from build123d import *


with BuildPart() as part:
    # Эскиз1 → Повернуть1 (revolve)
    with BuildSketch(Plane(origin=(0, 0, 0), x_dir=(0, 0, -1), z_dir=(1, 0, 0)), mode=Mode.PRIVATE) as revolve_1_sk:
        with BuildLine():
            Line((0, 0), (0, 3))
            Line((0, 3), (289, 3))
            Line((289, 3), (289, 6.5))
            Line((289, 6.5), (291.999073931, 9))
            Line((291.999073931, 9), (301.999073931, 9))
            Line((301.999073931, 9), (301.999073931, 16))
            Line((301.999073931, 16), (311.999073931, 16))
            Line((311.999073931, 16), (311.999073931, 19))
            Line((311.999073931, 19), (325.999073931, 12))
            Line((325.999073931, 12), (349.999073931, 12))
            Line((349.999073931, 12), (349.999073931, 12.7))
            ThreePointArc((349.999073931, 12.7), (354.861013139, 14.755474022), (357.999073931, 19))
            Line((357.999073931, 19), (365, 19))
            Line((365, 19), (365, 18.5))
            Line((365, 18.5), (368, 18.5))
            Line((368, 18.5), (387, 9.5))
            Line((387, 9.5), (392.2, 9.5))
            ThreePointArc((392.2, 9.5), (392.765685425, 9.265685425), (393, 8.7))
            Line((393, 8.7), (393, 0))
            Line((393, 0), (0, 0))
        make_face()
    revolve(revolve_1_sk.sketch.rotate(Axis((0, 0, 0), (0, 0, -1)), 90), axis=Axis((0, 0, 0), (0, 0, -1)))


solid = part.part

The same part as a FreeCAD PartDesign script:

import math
import FreeCAD as App
import Part
import Sketcher

doc = App.newDocument("Part")
body = doc.addObject("PartDesign::Body", "Body")

sketch1 = body.newObject("Sketcher::SketchObject", "Sketch")
sketch1.AttachmentSupport = (doc.getObject("YZ_Plane"), [""])
sketch1.MapMode = "FlatFace"
sketch1.addGeometry([
    Part.LineSegment(App.Vector(3, 0, 0), App.Vector(0, 0, 0)),
    Part.LineSegment(App.Vector(0, 0, 0), App.Vector(0, -393, 0)),
    Part.LineSegment(App.Vector(0, -393, 0), App.Vector(8.7, -393, 0)),
    Part.ArcOfCircle(Part.Circle(App.Vector(8.7, -392.2, 0), App.Vector(0, 0, 1), 0.8), math.radians(-90), math.radians(0)),
    Part.LineSegment(App.Vector(9.5, -392.2, 0), App.Vector(9.5, -387, 0)),
    Part.LineSegment(App.Vector(9.5, -387, 0), App.Vector(18.5, -368, 0)),
    Part.LineSegment(App.Vector(18.5, -368, 0), App.Vector(18.5, -365, 0)),
    Part.LineSegment(App.Vector(18.5, -365, 0), App.Vector(19, -365, 0)),
    Part.LineSegment(App.Vector(19, -365, 0), App.Vector(19, -358, 0)),
    Part.ArcOfCircle(Part.Circle(App.Vector(22.6, -348.7, 0), App.Vector(0, 0, 1), 10), math.radians(-172), math.radians(-111)),
    Part.LineSegment(App.Vector(12.7, -350, 0), App.Vector(12, -350, 0)),
    Part.LineSegment(App.Vector(12, -350, 0), App.Vector(12, -326, 0)),
    Part.LineSegment(App.Vector(12, -326, 0), App.Vector(19, -312, 0)),
    Part.LineSegment(App.Vector(19, -312, 0), App.Vector(16, -312, 0)),
    Part.LineSegment(App.Vector(16, -312, 0), App.Vector(16, -302, 0)),
    Part.LineSegment(App.Vector(16, -302, 0), App.Vector(9, -302, 0)),
    Part.LineSegment(App.Vector(9, -302, 0), App.Vector(9, -292, 0)),
    Part.LineSegment(App.Vector(9, -292, 0), App.Vector(6.5, -289, 0)),
    Part.LineSegment(App.Vector(6.5, -289, 0), App.Vector(3, -289, 0)),
    Part.LineSegment(App.Vector(3, -289, 0), App.Vector(3, 0, 0)),
], False)
sketch1.addConstraint([
    Sketcher.Constraint("Coincident", 0, 2, 1, 1),
    Sketcher.Constraint("Coincident", 1, 2, 2, 1),
    Sketcher.Constraint("Tangent", 2, 2, 3, 1),
    Sketcher.Constraint("Tangent", 3, 2, 4, 1),
    Sketcher.Constraint("Coincident", 4, 2, 5, 1),
    Sketcher.Constraint("Coincident", 5, 2, 6, 1),
    Sketcher.Constraint("Coincident", 6, 2, 7, 1),
    Sketcher.Constraint("Coincident", 7, 2, 8, 1),
    Sketcher.Constraint("Coincident", 8, 2, 9, 2),
    Sketcher.Constraint("Coincident", 9, 1, 10, 1),
    Sketcher.Constraint("Coincident", 10, 2, 11, 1),
    Sketcher.Constraint("Coincident", 11, 2, 12, 1),
    Sketcher.Constraint("Coincident", 12, 2, 13, 1),
    Sketcher.Constraint("Coincident", 13, 2, 14, 1),
    Sketcher.Constraint("Coincident", 14, 2, 15, 1),
    Sketcher.Constraint("Coincident", 15, 2, 16, 1),
    Sketcher.Constraint("Coincident", 16, 2, 17, 1),
    Sketcher.Constraint("Coincident", 17, 2, 18, 1),
    Sketcher.Constraint("Coincident", 18, 2, 19, 1),
    Sketcher.Constraint("Coincident", 19, 2, 0, 1),
    Sketcher.Constraint("Horizontal", 0),
    Sketcher.Constraint("Vertical", 1),
    Sketcher.Constraint("Horizontal", 2),
    Sketcher.Constraint("Vertical", 4),
    Sketcher.Constraint("Vertical", 6),
    Sketcher.Constraint("Horizontal", 7),
    Sketcher.Constraint("Vertical", 8),
    Sketcher.Constraint("Horizontal", 10),
    Sketcher.Constraint("Vertical", 11),
    Sketcher.Constraint("Horizontal", 13),
    Sketcher.Constraint("Vertical", 14),
    Sketcher.Constraint("Horizontal", 15),
    Sketcher.Constraint("Vertical", 16),
    Sketcher.Constraint("Horizontal", 18),
    Sketcher.Constraint("Vertical", 19),
    Sketcher.Constraint("Coincident", 0, 2, -1, 1),
    Sketcher.Constraint("Vertical", 8, 2, 12, 2),
    Sketcher.Constraint("Equal", 0, 13),
    Sketcher.Constraint("Equal", 13, 6),
    Sketcher.Constraint("Equal", 14, 16),
    Sketcher.Constraint("Radius", 9, 10.0),
    Sketcher.Constraint("Radius", 3, 0.8),
    Sketcher.Constraint("DistanceX", 0, 2, 0, 1, 3.0),
    Sketcher.Constraint("DistanceX", 15, 2, 15, 1, 7.0),
    Sketcher.Constraint("DistanceY", 1, 2, 1, 1, 393.0),
    Sketcher.Constraint("DistanceY", 11, 1, 11, 2, 24.0),
    Sketcher.Constraint("DistanceY", 14, 1, 14, 2, 10.0),
    Sketcher.Constraint("DistanceY", 19, 1, 19, 2, 289.0),
    Sketcher.Constraint("DistanceX", 2, 1, 2, 2, 8.7),
    Sketcher.Constraint("DistanceX", 7, 1, 7, 2, 0.5),
    Sketcher.Constraint("DistanceX", 10, 2, 10, 1, 0.7),
    Sketcher.Constraint("DistanceX", 18, 2, 18, 1, 3.5),
    Sketcher.Constraint("DistanceY", 4, 1, 4, 2, 5.2),
    Sketcher.Constraint("DistanceY", 5, 2, -1, 1, 368.0),
    Sketcher.Constraint("DistanceX", -1, 1, 7, 2, 19.0),
    Sketcher.Constraint("DistanceX", -1, 1, 10, 2, 12.0),
    Sketcher.Constraint("DistanceY", 8, 2, 9, 1, 8.0),
    Sketcher.Constraint("DistanceY", 11, 2, 12, 2, 14.0),
    Sketcher.Constraint("DistanceY", 8, 1, 8, 2, 7.000926),
])
revolution = body.newObject("PartDesign::Revolution", "Revolution")
revolution.Profile = sketch1
revolution.ReferenceAxis = (sketch1, ["V_Axis"])
revolution.Angle = 360

doc.recompute()
